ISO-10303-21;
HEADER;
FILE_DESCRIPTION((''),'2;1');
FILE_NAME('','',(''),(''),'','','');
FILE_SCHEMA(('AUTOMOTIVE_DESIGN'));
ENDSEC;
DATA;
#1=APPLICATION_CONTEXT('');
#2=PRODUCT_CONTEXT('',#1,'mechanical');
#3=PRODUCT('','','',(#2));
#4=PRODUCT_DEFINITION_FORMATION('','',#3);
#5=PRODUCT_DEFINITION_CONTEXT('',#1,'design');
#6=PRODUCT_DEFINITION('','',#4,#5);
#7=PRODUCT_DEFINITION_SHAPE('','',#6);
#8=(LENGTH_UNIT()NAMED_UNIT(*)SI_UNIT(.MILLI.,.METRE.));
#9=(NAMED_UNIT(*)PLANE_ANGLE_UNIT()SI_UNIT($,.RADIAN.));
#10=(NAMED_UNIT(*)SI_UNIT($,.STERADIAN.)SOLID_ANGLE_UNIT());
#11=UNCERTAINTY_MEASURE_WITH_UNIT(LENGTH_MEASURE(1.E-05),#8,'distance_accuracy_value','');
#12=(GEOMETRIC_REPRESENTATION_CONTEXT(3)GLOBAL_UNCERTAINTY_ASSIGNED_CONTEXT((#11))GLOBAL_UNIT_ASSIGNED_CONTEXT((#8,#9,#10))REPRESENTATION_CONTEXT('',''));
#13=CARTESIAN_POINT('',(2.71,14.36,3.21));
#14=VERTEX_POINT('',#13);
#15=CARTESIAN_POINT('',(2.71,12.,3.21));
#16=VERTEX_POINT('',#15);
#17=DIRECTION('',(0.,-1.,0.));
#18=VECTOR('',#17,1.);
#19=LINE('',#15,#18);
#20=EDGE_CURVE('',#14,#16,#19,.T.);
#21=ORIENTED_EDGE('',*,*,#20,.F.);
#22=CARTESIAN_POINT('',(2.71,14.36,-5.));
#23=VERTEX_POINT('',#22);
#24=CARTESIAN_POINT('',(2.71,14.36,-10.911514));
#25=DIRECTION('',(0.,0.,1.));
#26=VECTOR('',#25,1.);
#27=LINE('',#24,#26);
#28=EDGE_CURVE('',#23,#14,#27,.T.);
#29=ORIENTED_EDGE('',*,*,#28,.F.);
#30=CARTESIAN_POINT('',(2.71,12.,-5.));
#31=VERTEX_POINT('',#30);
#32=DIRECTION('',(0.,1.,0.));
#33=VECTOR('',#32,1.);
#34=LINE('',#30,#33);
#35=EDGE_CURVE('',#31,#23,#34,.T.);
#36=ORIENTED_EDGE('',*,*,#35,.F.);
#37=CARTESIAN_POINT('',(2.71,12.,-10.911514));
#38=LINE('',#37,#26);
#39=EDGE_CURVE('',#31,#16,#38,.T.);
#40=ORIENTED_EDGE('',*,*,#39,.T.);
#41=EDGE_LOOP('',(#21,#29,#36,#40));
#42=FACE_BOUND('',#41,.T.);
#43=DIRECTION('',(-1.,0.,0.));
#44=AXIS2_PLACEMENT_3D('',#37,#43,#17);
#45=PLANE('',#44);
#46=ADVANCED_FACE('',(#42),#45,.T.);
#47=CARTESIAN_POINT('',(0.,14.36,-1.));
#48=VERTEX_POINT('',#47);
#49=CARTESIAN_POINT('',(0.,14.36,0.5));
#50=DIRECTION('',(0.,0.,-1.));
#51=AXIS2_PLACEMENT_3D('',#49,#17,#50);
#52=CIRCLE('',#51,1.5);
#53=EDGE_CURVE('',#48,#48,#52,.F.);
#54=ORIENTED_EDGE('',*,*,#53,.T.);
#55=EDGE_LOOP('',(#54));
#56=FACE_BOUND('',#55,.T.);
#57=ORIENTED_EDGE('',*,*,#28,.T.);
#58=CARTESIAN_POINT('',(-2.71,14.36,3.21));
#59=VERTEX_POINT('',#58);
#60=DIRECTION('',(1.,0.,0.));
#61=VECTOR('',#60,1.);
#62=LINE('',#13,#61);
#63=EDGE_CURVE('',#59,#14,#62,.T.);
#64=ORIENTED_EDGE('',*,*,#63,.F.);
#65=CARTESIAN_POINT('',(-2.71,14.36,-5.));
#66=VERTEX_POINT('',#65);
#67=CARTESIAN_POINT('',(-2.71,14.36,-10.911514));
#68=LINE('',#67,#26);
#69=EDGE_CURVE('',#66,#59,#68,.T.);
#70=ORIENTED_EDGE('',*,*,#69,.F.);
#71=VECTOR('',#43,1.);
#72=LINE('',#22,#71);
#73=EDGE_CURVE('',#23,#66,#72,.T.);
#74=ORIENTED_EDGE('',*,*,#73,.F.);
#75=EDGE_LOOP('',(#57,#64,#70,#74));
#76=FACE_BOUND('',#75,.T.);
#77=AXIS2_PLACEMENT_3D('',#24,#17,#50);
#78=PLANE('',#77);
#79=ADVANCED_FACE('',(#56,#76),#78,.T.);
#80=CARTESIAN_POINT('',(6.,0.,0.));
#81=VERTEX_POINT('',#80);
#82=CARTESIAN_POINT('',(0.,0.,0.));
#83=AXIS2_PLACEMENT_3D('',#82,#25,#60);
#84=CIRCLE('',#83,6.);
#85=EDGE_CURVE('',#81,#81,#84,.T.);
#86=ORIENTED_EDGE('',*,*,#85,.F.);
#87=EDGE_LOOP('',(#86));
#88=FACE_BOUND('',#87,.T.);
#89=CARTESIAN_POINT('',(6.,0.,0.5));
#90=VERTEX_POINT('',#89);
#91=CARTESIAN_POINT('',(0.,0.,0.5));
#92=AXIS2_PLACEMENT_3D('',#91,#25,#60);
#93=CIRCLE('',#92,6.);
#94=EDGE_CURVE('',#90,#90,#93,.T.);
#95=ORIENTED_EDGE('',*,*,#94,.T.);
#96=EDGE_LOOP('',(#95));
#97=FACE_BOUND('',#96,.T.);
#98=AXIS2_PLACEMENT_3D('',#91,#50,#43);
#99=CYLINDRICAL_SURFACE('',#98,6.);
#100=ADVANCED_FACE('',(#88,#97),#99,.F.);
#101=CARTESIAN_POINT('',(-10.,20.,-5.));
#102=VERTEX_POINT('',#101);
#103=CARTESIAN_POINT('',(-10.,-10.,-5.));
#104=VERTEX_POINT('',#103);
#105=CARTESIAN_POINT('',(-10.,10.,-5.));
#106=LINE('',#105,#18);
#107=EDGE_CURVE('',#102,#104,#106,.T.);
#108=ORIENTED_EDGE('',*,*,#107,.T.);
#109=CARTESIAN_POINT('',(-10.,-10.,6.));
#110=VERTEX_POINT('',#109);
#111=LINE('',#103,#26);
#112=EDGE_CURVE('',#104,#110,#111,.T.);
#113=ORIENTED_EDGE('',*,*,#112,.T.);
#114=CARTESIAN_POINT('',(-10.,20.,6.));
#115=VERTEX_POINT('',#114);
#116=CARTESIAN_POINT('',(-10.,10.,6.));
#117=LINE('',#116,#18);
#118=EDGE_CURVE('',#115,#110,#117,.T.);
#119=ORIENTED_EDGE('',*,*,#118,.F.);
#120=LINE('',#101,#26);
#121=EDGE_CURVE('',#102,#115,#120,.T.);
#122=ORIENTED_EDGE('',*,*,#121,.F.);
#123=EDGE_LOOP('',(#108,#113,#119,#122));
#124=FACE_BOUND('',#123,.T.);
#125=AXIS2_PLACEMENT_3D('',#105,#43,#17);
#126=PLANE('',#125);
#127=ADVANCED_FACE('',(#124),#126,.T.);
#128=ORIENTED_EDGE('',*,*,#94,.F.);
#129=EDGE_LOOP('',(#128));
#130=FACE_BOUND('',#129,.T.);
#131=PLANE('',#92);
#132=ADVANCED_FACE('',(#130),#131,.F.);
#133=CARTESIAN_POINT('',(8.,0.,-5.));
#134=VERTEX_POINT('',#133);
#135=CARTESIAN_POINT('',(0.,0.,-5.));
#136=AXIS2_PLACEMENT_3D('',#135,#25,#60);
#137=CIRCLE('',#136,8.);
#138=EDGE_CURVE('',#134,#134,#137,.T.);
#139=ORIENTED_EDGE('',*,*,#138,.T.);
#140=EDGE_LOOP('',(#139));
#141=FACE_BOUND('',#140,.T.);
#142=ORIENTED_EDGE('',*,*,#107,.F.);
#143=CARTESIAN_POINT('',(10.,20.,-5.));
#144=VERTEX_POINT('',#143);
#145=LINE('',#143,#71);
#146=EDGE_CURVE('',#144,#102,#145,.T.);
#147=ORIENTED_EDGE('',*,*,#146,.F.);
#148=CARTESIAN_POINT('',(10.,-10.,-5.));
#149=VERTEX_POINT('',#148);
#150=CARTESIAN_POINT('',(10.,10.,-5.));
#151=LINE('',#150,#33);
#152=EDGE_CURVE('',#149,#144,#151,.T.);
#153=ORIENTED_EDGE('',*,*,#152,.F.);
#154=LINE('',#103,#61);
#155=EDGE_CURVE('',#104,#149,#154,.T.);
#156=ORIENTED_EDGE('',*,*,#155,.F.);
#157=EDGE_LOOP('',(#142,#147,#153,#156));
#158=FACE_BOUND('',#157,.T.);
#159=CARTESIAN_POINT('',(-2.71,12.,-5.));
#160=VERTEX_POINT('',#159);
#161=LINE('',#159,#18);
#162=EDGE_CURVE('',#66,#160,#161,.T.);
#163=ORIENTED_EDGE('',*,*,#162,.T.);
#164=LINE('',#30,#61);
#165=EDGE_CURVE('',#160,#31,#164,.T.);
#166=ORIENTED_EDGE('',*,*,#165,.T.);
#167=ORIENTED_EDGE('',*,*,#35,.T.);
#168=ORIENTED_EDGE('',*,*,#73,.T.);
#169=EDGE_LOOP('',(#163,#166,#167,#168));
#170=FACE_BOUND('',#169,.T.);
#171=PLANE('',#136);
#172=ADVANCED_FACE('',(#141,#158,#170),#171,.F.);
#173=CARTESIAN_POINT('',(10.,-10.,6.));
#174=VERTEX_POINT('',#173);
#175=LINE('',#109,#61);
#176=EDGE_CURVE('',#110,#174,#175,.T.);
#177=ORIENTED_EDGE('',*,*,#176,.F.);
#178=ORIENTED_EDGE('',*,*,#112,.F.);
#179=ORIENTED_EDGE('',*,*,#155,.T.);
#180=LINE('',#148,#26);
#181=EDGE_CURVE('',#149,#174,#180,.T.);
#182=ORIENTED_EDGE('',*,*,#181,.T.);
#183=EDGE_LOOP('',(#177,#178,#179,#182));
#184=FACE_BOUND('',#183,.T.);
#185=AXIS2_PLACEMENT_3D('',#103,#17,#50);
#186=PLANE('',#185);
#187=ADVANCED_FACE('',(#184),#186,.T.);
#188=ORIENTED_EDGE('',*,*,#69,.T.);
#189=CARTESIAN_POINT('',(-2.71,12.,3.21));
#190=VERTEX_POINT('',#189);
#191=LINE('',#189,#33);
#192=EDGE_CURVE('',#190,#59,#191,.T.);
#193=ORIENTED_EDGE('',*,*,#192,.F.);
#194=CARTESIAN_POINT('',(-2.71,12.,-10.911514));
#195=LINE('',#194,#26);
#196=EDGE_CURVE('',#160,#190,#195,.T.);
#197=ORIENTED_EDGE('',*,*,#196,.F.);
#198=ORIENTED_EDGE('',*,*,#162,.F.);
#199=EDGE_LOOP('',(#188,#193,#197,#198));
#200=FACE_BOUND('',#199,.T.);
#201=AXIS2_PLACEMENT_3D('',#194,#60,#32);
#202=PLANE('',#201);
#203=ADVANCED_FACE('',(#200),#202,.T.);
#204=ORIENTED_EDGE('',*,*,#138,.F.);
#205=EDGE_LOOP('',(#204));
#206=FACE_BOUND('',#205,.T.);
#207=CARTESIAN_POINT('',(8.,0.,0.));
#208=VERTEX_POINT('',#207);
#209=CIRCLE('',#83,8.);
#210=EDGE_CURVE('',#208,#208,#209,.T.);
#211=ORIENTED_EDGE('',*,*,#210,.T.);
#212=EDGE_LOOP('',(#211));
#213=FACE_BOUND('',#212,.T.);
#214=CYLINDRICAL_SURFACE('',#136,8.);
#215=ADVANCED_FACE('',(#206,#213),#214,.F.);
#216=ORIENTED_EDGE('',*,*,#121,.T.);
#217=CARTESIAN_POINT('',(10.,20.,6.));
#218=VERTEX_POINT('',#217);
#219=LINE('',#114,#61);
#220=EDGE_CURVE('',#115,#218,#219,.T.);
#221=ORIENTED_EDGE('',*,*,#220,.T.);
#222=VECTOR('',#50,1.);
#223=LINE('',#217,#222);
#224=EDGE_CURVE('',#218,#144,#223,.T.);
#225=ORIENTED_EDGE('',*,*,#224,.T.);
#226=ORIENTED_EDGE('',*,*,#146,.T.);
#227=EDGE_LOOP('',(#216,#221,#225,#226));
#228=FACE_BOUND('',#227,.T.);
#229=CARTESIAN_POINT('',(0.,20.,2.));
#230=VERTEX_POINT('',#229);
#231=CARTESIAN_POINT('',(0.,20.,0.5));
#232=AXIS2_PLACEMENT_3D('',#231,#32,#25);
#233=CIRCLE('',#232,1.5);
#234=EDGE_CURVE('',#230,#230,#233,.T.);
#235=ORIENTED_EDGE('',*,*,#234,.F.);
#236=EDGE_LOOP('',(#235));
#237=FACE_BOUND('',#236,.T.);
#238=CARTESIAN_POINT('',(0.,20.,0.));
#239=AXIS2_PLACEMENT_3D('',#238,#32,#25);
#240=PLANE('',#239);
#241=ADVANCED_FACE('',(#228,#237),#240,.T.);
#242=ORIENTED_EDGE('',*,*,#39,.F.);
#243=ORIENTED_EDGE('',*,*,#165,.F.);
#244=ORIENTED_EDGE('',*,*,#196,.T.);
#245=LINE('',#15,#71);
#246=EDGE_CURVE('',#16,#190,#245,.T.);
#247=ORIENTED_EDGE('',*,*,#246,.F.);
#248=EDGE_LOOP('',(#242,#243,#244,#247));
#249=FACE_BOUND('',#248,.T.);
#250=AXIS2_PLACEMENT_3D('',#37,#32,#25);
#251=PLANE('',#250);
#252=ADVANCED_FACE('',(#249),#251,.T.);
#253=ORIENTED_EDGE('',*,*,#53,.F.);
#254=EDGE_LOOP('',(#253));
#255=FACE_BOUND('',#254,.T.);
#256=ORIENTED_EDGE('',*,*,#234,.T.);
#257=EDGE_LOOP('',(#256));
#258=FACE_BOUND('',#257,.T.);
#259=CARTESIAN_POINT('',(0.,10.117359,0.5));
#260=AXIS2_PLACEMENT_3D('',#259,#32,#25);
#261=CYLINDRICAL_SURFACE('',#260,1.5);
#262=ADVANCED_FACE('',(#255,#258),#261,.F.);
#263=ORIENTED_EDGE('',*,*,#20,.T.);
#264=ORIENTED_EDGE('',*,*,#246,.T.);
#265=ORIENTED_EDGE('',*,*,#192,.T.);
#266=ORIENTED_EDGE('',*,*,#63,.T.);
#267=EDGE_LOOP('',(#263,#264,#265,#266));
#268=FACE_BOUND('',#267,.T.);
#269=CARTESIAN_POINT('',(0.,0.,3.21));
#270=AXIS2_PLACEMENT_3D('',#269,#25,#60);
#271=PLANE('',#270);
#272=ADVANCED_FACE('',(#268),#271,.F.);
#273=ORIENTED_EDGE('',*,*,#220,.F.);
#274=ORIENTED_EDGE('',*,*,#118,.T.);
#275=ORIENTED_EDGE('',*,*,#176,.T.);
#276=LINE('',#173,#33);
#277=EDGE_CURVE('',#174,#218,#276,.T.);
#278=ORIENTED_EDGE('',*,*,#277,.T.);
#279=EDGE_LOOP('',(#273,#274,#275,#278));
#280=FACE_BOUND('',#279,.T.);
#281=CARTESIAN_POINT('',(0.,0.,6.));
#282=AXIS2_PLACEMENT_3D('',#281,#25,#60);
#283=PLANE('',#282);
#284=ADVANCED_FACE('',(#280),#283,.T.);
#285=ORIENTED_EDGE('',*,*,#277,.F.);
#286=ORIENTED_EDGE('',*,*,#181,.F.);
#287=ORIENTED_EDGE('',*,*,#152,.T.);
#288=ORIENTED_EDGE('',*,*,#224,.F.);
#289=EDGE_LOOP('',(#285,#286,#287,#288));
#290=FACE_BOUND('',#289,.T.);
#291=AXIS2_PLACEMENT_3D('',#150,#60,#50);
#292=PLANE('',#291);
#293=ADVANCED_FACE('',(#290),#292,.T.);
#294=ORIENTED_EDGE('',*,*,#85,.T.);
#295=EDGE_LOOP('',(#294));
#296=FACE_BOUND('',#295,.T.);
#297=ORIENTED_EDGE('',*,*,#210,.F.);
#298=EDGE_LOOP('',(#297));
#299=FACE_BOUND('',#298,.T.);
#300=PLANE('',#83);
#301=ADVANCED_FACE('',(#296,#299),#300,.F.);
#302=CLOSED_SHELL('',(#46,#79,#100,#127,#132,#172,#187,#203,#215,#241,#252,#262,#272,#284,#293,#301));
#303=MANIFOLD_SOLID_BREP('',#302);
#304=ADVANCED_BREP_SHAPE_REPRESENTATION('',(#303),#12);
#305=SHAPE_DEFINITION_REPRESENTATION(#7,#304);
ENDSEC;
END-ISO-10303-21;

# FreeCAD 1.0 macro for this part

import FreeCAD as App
import Part
import Sketcher


def add_polygon(sketch, points):
    """Adds a closed chain of lines whose ends are joined by coincident constraints."""
    first, n = sketch.GeometryCount, len(points)
    for a, b in zip(points, points[1:] + points[:1]):
        sketch.addGeometry(Part.LineSegment(App.Vector(*a, 0), App.Vector(*b, 0)), False)
    for i in range(n):
        sketch.addConstraint(Sketcher.Constraint("Coincident", first + i, 2, first + (i + 1) % n, 1))

doc = App.newDocument("Part")
params = doc.addObject("Spreadsheet::Sheet", "Params")
for row, (alias, value) in enumerate([
    ("sketch1_diameter", "16 mm"),
    ("sketch1_width", "20 mm"),
    ("pad1_length", "5 mm"),
    ("sketch2_diameter", "12 mm"),
    ("sketch2_width", "20 mm"),
    ("pad2_length", "0.5 mm"),
    ("sketch3_width", "20 mm"),
    ("pad3_length", "5.5 mm"),
    ("sketch4_width", "20 mm"),
    ("sketch4_height", "11 mm"),
    ("pad4_length", "10 mm"),
    ("sketch5_width", "5.42 mm"),
    ("sketch5_height", "2.36 mm"),
    ("pocket1_length", "5.5 mm"),
    ("pocket1_length2", "2.71 mm"),
    ("sketch6_diameter", "3 mm"),
    ("pocket2_length", "5.64 mm"),
], start=1):
    params.set(f"A{row}", alias)
    params.set(f"B{row}", "=" + value)
    params.setAlias(f"B{row}", alias)

body = doc.addObject("PartDesign::Body", "Body")

# Sketch on XY plane
sketch1 = body.newObject("Sketcher::SketchObject", "Sketch")
sketch1.AttachmentSupport = (doc.getObject("XY_Plane"), [""])
sketch1.MapMode = "FlatFace"
add_polygon(sketch1, [(-10, 10), (-10, -10), (10, -10), (10, 10)])  # lines 0-3
sketch1.addGeometry(Part.Circle(App.Vector(0, 0, 0), App.Vector(0, 0, 1), 8), False)  # 4
sketch1.addConstraint(Sketcher.Constraint("Vertical", 0))
sketch1.addConstraint(Sketcher.Constraint("Horizontal", 1))
sketch1.addConstraint(Sketcher.Constraint("Vertical", 2))
sketch1.addConstraint(Sketcher.Constraint("Horizontal", 3))
sketch1.addConstraint(Sketcher.Constraint("Coincident", 4, 3, -1, 1))
sketch1.addConstraint(Sketcher.Constraint("Symmetric", 0, 2, 2, 2, -1, 1))
sketch1.addConstraint(Sketcher.Constraint("Equal", 3, 0))
sketch1.addConstraint(Sketcher.Constraint("Diameter", 4, 16.0))
sketch1.addConstraint(Sketcher.Constraint("DistanceX", 1, 1, 1, 2, 20.0))
sketch1.setExpression("Constraints[11]", "Params.sketch1_diameter")
sketch1.setExpression("Constraints[12]", "Params.sketch1_width")
pad1 = body.newObject("PartDesign::Pad", "Pad")
pad1.Profile = sketch1
pad1.setExpression("Length", "Params.pad1_length")
pad1.Reversed = True

# Sketch on XY plane
sketch2 = body.newObject("Sketcher::SketchObject", "Sketch001")
sketch2.AttachmentSupport = (doc.getObject("XY_Plane"), [""])
sketch2.MapMode = "FlatFace"
add_polygon(sketch2, [(-10, 10), (-10, -10), (10, -10), (10, 10)])  # lines 0-3
sketch2.addGeometry(Part.Circle(App.Vector(0, 0, 0), App.Vector(0, 0, 1), 6), False)  # 4
sketch2.addConstraint(Sketcher.Constraint("Vertical", 0))
sketch2.addConstraint(Sketcher.Constraint("Horizontal", 1))
sketch2.addConstraint(Sketcher.Constraint("Vertical", 2))
sketch2.addConstraint(Sketcher.Constraint("Horizontal", 3))
sketch2.addConstraint(Sketcher.Constraint("Coincident", 4, 3, -1, 1))
sketch2.addConstraint(Sketcher.Constraint("Symmetric", 0, 2, 2, 2, -1, 1))
sketch2.addConstraint(Sketcher.Constraint("Equal", 3, 0))
sketch2.addConstraint(Sketcher.Constraint("Diameter", 4, 12.0))
sketch2.addConstraint(Sketcher.Constraint("DistanceX", 1, 1, 1, 2, 20.0))
sketch2.setExpression("Constraints[11]", "Params.sketch2_diameter")
sketch2.setExpression("Constraints[12]", "Params.sketch2_width")
pad2 = body.newObject("PartDesign::Pad", "Pad001")
pad2.Profile = sketch2
pad2.setExpression("Length", "Params.pad2_length")

# Sketch on XY plane
sketch3 = body.newObject("Sketcher::SketchObject", "Sketch002")
sketch3.AttachmentSupport = (doc.getObject("XY_Plane"), [""])
sketch3.MapMode = "FlatFace"
sketch3.AttachmentOffset = App.Placement(App.Vector(0, 0, 0.5), App.Rotation())
add_polygon(sketch3, [(-10, 10), (-10, -10), (10, -10), (10, 10)])  # lines 0-3
sketch3.addConstraint(Sketcher.Constraint("Vertical", 0))
sketch3.addConstraint(Sketcher.Constraint("Horizontal", 1))
sketch3.addConstraint(Sketcher.Constraint("Vertical", 2))
sketch3.addConstraint(Sketcher.Constraint("Horizontal", 3))
sketch3.addConstraint(Sketcher.Constraint("Symmetric", 0, 2, 2, 2, -1, 1))
sketch3.addConstraint(Sketcher.Constraint("Equal", 3, 0))
sketch3.addConstraint(Sketcher.Constraint("DistanceX", 1, 1, 1, 2, 20.0))
sketch3.setExpression("Constraints[10]", "Params.sketch3_width")
pad3 = body.newObject("PartDesign::Pad", "Pad002")
pad3.Profile = sketch3
pad3.setExpression("Length", "Params.pad3_length")

# Sketch on XZ plane
sketch4 = body.newObject("Sketcher::SketchObject", "Sketch003")
sketch4.AttachmentSupport = (doc.getObject("XZ_Plane"), [""])
sketch4.MapMode = "FlatFace"
sketch4.AttachmentOffset = App.Placement(App.Vector(0, 0, -10), App.Rotation())
add_polygon(sketch4, [(-10, -5), (-10, 6), (10, 6), (10, -5)])  # lines 0-3
sketch4.addConstraint(Sketcher.Constraint("Vertical", 0))
sketch4.addConstraint(Sketcher.Constraint("Horizontal", 1))
sketch4.addConstraint(Sketcher.Constraint("Vertical", 2))
sketch4.addConstraint(Sketcher.Constraint("Horizontal", 3))
sketch4.addConstraint(Sketcher.Constraint("DistanceX", 1, 1, 1, 2, 20.0))
sketch4.addConstraint(Sketcher.Constraint("DistanceY", 0, 1, 0, 2, 11.0))
sketch4.addConstraint(Sketcher.Constraint("DistanceX", 0, 2, -1, 1, 10.0))
sketch4.addConstraint(Sketcher.Constraint("DistanceY", -1, 1, 0, 2, 6.0))
sketch4.setExpression("Constraints[8]", "Params.sketch4_width")
sketch4.setExpression("Constraints[9]", "Params.sketch4_height")
pad4 = body.newObject("PartDesign::Pad", "Pad003")
pad4.Profile = sketch4
pad4.setExpression("Length", "Params.pad4_length")
pad4.Reversed = True

# Sketch on XY plane
sketch5 = body.newObject("Sketcher::SketchObject", "Sketch004")
sketch5.AttachmentSupport = (doc.getObject("XY_Plane"), [""])
sketch5.MapMode = "FlatFace"
sketch5.AttachmentOffset = App.Placement(App.Vector(0, 0, 0.5), App.Rotation())
add_polygon(sketch5, [(2.71, 14.36), (2.71, 12), (-2.71, 12), (-2.71, 14.36)])  # lines 0-3
sketch5.addConstraint(Sketcher.Constraint("Vertical", 0))
sketch5.addConstraint(Sketcher.Constraint("Horizontal", 1))
sketch5.addConstraint(Sketcher.Constraint("Vertical", 2))
sketch5.addConstraint(Sketcher.Constraint("Horizontal", 3))
sketch5.addConstraint(Sketcher.Constraint("DistanceY", -1, 1, 0, 2, 12.0))
sketch5.addConstraint(Sketcher.Constraint("DistanceX", 1, 2, 1, 1, 5.42))
sketch5.addConstraint(Sketcher.Constraint("DistanceY", 0, 2, 0, 1, 2.36))
sketch5.addConstraint(Sketcher.Constraint("DistanceX", -1, 1, 0, 2, 2.71))
sketch5.setExpression("Constraints[9]", "Params.sketch5_width")
sketch5.setExpression("Constraints[10]", "Params.sketch5_height")
pocket1 = body.newObject("PartDesign::Pocket", "Pocket")
pocket1.Profile = sketch5
pocket1.Type = "TwoLengths"
pocket1.setExpression("Length", "Params.pocket1_length")
pocket1.setExpression("Length2", "Params.pocket1_length2")

# Sketch on XZ plane
sketch6 = body.newObject("Sketcher::SketchObject", "Sketch005")
sketch6.AttachmentSupport = (doc.getObject("XZ_Plane"), [""])
sketch6.MapMode = "FlatFace"
sketch6.AttachmentOffset = App.Placement(App.Vector(0, 0, -20), App.Rotation())
sketch6.addGeometry(Part.Circle(App.Vector(0, 0.5, 0), App.Vector(0, 0, 1), 1.5), False)
sketch6.addConstraint(Sketcher.Constraint("PointOnObject", 0, 3, -2))
sketch6.addConstraint(Sketcher.Constraint("Diameter", 0, 3.0))
sketch6.addConstraint(Sketcher.Constraint("DistanceY", -1, 1, 0, 3, 0.5))
sketch6.setExpression("Constraints[1]", "Params.sketch6_diameter")
pocket2 = body.newObject("PartDesign::Pocket", "Pocket001")
pocket2.Profile = sketch6
pocket2.setExpression("Length", "Params.pocket2_length")
pocket2.Reversed = True

doc.recompute()
